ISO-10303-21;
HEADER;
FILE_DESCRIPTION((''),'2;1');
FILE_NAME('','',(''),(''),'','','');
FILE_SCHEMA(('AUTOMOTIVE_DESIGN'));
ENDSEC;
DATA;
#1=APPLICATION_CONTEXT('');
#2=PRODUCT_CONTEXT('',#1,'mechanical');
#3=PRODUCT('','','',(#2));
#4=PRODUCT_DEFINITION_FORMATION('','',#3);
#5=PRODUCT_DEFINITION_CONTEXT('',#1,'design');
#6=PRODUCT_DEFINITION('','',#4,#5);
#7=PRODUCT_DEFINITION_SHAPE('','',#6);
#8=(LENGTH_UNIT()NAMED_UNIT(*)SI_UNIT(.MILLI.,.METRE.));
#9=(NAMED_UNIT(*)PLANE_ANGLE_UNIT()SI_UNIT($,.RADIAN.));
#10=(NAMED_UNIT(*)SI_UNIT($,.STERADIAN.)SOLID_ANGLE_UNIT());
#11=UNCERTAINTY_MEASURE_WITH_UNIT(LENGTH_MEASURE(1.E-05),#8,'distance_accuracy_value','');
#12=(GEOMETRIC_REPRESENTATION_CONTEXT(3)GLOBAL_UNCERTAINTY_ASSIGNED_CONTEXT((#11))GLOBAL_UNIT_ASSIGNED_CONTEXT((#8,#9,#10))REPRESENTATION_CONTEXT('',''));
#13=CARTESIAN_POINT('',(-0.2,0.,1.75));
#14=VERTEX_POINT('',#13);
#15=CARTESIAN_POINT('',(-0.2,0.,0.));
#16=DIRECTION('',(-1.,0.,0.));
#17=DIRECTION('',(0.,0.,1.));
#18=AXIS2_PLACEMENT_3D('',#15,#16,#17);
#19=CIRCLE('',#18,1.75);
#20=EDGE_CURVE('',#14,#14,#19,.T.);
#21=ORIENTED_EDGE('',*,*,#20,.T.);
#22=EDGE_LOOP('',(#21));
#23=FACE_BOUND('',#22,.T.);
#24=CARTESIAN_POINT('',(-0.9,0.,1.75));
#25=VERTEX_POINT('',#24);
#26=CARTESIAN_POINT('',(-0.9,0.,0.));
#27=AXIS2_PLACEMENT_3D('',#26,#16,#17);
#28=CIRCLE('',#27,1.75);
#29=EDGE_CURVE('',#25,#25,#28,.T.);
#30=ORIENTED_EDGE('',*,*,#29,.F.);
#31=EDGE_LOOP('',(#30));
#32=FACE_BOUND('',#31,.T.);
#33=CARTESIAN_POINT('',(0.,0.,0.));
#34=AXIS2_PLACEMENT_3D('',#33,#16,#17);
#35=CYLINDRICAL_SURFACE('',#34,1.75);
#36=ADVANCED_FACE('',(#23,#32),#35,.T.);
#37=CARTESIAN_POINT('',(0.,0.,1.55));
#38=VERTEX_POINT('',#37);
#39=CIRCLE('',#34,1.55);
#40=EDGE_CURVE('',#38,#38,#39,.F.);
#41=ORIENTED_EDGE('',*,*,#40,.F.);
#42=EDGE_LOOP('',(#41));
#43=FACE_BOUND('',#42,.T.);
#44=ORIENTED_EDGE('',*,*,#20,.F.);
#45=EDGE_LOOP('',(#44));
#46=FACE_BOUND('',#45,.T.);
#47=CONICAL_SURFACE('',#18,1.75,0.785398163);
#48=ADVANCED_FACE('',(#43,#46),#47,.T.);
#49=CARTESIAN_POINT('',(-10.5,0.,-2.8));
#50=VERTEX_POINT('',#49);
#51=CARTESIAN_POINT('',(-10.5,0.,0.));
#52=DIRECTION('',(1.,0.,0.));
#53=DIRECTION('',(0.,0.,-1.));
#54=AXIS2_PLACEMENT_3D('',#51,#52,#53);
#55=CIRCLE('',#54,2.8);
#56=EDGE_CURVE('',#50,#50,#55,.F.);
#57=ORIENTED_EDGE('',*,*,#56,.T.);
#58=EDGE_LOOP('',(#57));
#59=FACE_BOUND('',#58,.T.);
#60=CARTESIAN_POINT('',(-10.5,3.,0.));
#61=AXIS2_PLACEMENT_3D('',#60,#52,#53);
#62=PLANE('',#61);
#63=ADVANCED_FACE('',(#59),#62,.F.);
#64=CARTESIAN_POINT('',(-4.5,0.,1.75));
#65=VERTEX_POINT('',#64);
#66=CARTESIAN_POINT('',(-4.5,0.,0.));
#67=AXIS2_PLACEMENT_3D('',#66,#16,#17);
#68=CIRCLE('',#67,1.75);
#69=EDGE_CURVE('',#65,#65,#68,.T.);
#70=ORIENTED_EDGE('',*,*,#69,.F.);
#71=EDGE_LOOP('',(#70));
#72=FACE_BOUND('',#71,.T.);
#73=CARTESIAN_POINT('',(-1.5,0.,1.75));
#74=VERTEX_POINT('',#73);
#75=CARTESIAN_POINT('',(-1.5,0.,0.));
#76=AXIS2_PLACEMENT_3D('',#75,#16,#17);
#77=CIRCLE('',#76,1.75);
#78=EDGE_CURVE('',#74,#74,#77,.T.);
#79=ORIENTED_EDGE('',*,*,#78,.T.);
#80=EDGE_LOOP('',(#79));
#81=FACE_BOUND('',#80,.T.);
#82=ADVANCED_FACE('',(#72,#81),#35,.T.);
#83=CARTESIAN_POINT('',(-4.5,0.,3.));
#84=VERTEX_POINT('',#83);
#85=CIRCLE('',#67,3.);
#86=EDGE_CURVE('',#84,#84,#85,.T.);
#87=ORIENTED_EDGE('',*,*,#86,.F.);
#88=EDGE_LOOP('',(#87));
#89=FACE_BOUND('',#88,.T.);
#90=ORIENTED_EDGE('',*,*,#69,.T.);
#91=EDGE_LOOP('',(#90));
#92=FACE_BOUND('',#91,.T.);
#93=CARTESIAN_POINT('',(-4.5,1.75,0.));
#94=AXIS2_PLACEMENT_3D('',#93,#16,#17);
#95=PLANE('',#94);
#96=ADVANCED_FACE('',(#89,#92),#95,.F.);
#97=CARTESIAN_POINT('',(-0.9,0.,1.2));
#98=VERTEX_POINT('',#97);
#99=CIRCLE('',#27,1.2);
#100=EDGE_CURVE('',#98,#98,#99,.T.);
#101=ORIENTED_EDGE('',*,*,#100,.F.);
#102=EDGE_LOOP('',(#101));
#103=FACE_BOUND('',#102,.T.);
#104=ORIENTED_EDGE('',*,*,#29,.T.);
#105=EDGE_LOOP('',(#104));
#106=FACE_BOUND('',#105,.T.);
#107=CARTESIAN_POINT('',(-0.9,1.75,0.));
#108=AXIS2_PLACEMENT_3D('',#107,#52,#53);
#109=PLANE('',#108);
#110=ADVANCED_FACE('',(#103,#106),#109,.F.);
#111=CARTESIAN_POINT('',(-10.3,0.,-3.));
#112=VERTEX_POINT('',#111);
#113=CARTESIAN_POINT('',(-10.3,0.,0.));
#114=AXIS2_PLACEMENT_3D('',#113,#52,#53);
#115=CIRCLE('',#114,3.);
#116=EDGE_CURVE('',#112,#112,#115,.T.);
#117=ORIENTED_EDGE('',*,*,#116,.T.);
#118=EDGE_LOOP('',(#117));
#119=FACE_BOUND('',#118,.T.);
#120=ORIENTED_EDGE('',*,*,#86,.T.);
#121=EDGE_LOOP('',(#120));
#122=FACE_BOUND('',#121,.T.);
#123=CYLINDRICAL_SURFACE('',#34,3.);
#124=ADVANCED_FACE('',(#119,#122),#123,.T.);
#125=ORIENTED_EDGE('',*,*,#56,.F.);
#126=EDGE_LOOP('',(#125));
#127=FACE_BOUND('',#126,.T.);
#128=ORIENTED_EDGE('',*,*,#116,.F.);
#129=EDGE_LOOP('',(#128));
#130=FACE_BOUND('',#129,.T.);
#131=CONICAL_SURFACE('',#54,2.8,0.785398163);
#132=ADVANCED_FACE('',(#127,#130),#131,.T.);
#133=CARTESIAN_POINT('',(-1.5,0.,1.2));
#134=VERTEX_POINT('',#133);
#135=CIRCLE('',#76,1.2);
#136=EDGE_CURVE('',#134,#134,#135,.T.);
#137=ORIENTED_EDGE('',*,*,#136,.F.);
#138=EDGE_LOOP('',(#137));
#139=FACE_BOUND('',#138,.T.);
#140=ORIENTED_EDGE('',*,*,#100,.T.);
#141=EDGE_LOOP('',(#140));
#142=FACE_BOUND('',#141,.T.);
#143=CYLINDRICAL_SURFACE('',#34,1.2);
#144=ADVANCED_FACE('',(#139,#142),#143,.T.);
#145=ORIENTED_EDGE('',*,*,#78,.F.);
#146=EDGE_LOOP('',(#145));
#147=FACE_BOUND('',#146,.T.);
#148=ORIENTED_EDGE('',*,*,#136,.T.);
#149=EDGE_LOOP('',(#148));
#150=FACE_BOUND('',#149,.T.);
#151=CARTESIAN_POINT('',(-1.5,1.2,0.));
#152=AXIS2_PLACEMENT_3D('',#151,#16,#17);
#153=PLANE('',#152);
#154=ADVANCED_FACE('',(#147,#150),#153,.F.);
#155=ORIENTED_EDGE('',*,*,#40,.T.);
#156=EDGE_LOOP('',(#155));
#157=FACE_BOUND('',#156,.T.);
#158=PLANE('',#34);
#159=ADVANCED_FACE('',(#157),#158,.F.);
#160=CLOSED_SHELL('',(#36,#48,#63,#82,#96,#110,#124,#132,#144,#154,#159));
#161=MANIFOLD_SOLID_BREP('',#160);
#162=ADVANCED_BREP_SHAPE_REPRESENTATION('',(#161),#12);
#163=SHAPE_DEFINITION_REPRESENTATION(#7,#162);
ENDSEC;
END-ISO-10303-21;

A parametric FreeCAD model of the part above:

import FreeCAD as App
import Part
import Sketcher


def edges_at(feature, points):
    """Names of the edges that pass closest to the given points."""
    edges = feature.Shape.Edges
    near = lambda p: min(range(len(edges)), key=lambda i: edges[i].distToShape(Part.Vertex(*p))[0])
    return sorted({f"Edge{near(p) + 1}" for p in points})

doc = App.newDocument("Part")
body = doc.addObject("PartDesign::Body", "Body")

sketch1 = body.newObject("Sketcher::SketchObject", "Sketch")
sketch1.AttachmentSupport = (doc.getObject("XY_Plane"), [""])
sketch1.MapMode = "FlatFace"
sketch1.addGeometry([
    Part.LineSegment(App.Vector(0, 0, 0), App.Vector(0, 1.8, 0)),
    Part.LineSegment(App.Vector(0, 1.8, 0), App.Vector(-0.9, 1.8, 0)),
    Part.LineSegment(App.Vector(-0.9, 1.8, 0), App.Vector(-0.9, 1.2, 0)),
    Part.LineSegment(App.Vector(-0.9, 1.2, 0), App.Vector(-1.5, 1.2, 0)),
    Part.LineSegment(App.Vector(-1.5, 1.2, 0), App.Vector(-1.5, 1.8, 0)),
    Part.LineSegment(App.Vector(-1.5, 1.8, 0), App.Vector(-4.5, 1.8, 0)),
    Part.LineSegment(App.Vector(-4.5, 1.8, 0), App.Vector(-4.5, 3, 0)),
    Part.LineSegment(App.Vector(-4.5, 3, 0), App.Vector(-10.5, 3, 0)),
    Part.LineSegment(App.Vector(-10.5, 3, 0), App.Vector(-10.5, 0, 0)),
    Part.LineSegment(App.Vector(-10.5, 0, 0), App.Vector(0, 0, 0)),
], False)
sketch1.addConstraint([
    Sketcher.Constraint("Coincident", 0, 2, 1, 1),
    Sketcher.Constraint("Coincident", 1, 2, 2, 1),
    Sketcher.Constraint("Coincident", 2, 2, 3, 1),
    Sketcher.Constraint("Coincident", 3, 2, 4, 1),
    Sketcher.Constraint("Coincident", 4, 2, 5, 1),
    Sketcher.Constraint("Coincident", 5, 2, 6, 1),
    Sketcher.Constraint("Coincident", 6, 2, 7, 1),
    Sketcher.Constraint("Coincident", 7, 2, 8, 1),
    Sketcher.Constraint("Coincident", 8, 2, 9, 1),
    Sketcher.Constraint("Coincident", 9, 2, 0, 1),
    Sketcher.Constraint("Vertical", 0),
    Sketcher.Constraint("Horizontal", 1),
    Sketcher.Constraint("Vertical", 2),
    Sketcher.Constraint("Horizontal", 3),
    Sketcher.Constraint("Vertical", 4),
    Sketcher.Constraint("Horizontal", 5),
    Sketcher.Constraint("Vertical", 6),
    Sketcher.Constraint("Horizontal", 7),
    Sketcher.Constraint("Vertical", 8),
    Sketcher.Constraint("Horizontal", 9),
    Sketcher.Constraint("Coincident", 9, 2, -1, 1),
    Sketcher.Constraint("Horizontal", 1, 2, 4, 2),
    Sketcher.Constraint("Equal", 5, 8),
    Sketcher.Constraint("DistanceX", 5, 2, 5, 1, 3.0),
    Sketcher.Constraint("DistanceX", 7, 2, 7, 1, 6.0),
    Sketcher.Constraint("DistanceX", 1, 2, 1, 1, 0.9),
    Sketcher.Constraint("DistanceX", 3, 2, 3, 1, 0.6),
    Sketcher.Constraint("DistanceY", 0, 1, 0, 2, 1.75),
    Sketcher.Constraint("DistanceY", 2, 2, 2, 1, 0.55),
])
revolution = body.newObject("PartDesign::Revolution", "Revolution")
revolution.Profile = sketch1
revolution.ReferenceAxis = (sketch1, ["H_Axis"])
revolution.Angle = 360
doc.recompute()

chamfer = body.newObject("PartDesign::Chamfer", "Chamfer")
chamfer.Base = (revolution, edges_at(revolution, [(-10.5, 0, -3), (0, 0, -1.75)]))
chamfer.Size = 0.2

doc.recompute()
